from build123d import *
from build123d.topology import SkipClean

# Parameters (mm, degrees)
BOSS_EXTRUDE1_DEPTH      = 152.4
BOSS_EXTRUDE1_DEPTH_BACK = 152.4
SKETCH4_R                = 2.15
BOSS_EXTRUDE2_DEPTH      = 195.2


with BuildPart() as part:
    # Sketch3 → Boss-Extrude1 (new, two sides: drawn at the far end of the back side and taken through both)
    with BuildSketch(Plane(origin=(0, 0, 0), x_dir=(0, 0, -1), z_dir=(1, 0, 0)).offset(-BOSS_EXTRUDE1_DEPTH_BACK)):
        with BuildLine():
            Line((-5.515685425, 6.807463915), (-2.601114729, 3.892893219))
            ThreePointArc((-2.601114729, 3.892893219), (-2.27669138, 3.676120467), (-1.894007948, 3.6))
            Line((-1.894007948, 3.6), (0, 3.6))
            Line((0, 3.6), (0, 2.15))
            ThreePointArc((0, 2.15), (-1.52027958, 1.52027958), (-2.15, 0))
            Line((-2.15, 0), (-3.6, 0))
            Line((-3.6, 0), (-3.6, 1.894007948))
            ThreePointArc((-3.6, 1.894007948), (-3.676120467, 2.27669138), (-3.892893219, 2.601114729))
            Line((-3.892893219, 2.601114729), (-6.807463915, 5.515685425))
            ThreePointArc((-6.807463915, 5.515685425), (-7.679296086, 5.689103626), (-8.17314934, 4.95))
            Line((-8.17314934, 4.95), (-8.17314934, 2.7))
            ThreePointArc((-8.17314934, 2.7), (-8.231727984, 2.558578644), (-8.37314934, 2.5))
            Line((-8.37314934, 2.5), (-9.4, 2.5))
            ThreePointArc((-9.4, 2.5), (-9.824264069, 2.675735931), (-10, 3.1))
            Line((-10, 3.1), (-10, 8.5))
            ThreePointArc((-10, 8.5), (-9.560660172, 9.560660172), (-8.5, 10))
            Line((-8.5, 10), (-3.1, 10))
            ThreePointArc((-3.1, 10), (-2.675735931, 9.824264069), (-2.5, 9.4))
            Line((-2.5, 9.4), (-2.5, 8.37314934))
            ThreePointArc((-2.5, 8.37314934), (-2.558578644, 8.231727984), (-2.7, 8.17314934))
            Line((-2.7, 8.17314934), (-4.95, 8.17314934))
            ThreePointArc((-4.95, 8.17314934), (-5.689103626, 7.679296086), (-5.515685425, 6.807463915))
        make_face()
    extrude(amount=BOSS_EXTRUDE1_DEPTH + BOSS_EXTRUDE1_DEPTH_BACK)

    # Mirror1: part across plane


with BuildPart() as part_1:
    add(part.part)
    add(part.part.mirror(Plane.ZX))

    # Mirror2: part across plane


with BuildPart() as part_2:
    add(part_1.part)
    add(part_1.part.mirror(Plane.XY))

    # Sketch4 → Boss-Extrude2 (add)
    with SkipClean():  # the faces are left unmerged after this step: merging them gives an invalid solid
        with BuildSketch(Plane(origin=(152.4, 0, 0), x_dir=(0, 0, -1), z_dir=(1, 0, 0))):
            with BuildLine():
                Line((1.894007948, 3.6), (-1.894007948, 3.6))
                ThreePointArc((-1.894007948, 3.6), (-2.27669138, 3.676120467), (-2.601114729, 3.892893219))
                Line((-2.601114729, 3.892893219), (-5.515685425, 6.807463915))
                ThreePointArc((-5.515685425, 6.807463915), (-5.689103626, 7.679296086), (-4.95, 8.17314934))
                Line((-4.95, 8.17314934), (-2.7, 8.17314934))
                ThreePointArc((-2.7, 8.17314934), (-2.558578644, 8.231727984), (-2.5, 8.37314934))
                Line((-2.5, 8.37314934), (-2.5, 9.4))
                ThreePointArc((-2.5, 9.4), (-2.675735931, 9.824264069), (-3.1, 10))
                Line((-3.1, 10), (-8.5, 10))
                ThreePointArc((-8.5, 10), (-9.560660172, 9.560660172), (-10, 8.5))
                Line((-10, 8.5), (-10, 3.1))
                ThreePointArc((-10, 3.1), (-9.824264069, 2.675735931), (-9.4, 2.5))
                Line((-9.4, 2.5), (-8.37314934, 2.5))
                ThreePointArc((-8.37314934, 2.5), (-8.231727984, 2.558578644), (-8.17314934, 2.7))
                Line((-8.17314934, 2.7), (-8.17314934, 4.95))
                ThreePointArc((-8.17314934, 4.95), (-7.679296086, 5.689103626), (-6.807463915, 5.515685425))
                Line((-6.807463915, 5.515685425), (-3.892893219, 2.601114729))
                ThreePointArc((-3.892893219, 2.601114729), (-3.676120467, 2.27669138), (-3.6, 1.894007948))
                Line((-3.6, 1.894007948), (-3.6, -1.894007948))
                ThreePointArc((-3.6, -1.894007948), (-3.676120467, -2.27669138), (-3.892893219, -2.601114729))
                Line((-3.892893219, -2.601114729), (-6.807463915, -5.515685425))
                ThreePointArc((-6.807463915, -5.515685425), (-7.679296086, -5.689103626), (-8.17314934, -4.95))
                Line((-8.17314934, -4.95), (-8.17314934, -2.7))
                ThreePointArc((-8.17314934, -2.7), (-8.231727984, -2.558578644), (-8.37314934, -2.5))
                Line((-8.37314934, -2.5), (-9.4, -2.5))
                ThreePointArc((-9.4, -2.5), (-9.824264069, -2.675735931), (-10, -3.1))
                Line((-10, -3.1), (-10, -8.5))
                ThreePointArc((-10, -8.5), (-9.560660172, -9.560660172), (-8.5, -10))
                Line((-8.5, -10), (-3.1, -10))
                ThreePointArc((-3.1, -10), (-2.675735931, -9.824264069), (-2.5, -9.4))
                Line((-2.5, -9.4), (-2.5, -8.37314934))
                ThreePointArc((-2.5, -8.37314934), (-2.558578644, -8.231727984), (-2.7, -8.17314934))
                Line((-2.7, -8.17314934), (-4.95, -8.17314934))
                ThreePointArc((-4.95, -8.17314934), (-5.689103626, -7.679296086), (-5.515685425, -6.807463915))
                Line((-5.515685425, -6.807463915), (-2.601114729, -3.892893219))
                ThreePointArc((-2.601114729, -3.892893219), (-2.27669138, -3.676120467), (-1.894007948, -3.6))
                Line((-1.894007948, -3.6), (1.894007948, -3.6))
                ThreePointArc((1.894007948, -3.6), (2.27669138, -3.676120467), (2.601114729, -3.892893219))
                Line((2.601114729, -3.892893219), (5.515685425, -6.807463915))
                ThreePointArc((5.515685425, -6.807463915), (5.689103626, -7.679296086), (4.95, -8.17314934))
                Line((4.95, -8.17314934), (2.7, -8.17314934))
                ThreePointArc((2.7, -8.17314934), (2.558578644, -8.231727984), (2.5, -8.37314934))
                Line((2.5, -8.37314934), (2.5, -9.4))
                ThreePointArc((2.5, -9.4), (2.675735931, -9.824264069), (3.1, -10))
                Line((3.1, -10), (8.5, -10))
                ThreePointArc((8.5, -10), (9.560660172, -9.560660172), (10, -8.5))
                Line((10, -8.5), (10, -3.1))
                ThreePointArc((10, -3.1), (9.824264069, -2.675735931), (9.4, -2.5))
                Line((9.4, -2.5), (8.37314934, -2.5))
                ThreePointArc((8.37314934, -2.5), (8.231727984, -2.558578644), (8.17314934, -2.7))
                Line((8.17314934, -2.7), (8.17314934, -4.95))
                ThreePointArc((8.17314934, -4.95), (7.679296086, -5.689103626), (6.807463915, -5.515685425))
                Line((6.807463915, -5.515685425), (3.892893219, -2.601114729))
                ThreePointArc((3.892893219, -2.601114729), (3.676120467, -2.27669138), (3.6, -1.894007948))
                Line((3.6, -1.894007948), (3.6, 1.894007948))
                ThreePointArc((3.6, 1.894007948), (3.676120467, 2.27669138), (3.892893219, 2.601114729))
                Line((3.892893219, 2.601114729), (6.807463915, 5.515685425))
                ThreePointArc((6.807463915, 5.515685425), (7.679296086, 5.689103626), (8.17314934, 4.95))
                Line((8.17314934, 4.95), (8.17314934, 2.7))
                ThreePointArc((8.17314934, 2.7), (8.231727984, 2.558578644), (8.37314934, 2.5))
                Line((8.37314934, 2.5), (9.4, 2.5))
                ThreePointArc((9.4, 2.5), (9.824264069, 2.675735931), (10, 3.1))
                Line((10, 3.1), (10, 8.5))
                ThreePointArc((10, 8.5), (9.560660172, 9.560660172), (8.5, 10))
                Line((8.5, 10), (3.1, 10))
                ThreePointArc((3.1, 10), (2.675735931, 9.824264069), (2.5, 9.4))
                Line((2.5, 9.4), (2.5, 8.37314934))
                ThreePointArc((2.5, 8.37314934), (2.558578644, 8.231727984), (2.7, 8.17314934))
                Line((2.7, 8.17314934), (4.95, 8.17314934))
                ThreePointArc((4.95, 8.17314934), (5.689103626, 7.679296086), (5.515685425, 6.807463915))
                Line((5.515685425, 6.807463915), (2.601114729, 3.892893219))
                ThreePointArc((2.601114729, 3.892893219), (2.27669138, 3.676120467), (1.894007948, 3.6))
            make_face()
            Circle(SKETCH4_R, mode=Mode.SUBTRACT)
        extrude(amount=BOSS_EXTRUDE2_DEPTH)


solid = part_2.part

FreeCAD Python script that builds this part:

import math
import FreeCAD as App
import Part
import Sketcher
Q = App.Units.Quantity

doc = App.newDocument("Part")
body = doc.addObject("PartDesign::Body", "Body")

# Sketch on YZ plane
sketch1 = body.newObject("Sketcher::SketchObject", "Sketch")
sketch1.AttachmentSupport = (doc.getObject("YZ_Plane"), [""])
sketch1.MapMode = "FlatFace"
sketch1.addGeometry([
    Part.LineSegment(App.Vector(3.89, 2.6, 0), App.Vector(6.81, 5.52, 0)),  # 0
    Part.ArcOfCircle(Part.Circle(App.Vector(7.37, 4.95, 0), App.Vector(0, 0, 1), 0.8), math.radians(0), math.radians(135)),  # 1
    Part.LineSegment(App.Vector(8.17, 4.95, 0), App.Vector(8.17, 2.7, 0)),  # 2
    Part.ArcOfCircle(Part.Circle(App.Vector(8.37, 2.7, 0), App.Vector(0, 0, 1), 0.2), math.radians(-180), math.radians(-90)),  # 3
    Part.LineSegment(App.Vector(8.37, 2.5, 0), App.Vector(9.4, 2.5, 0)),  # 4
    Part.ArcOfCircle(Part.Circle(App.Vector(9.4, 3.1, 0), App.Vector(0, 0, 1), 0.6), math.radians(-90), math.radians(0)),  # 5
    Part.LineSegment(App.Vector(10, 3.1, 0), App.Vector(10, 8.5, 0)),  # 6
    Part.ArcOfCircle(Part.Circle(App.Vector(8.5, 8.5, 0), App.Vector(0, 0, 1), 1.5), math.radians(0), math.radians(90)),  # 7
    Part.LineSegment(App.Vector(8.5, 10, 0), App.Vector(3.1, 10, 0)),  # 8
    Part.ArcOfCircle(Part.Circle(App.Vector(3.1, 9.4, 0), App.Vector(0, 0, 1), 0.6), math.radians(90), math.radians(180)),  # 9
    Part.LineSegment(App.Vector(2.5, 9.4, 0), App.Vector(2.5, 8.37, 0)),  # 10
    Part.ArcOfCircle(Part.Circle(App.Vector(2.7, 8.37, 0), App.Vector(0, 0, 1), 0.2), math.radians(-180), math.radians(-90)),  # 11
    Part.LineSegment(App.Vector(2.7, 8.17, 0), App.Vector(4.95, 8.17, 0)),  # 12
    Part.ArcOfCircle(Part.Circle(App.Vector(4.95, 7.37, 0), App.Vector(0, 0, 1), 0.8), math.radians(-45), math.radians(90)),  # 13
    Part.LineSegment(App.Vector(5.52, 6.81, 0), App.Vector(2.6, 3.89, 0)),  # 14
    Part.ArcOfCircle(Part.Circle(App.Vector(1.89, 4.6, 0), App.Vector(0, 0, 1), 1), math.radians(-90), math.radians(-45)),  # 15
    Part.LineSegment(App.Vector(1.89, 3.6, 0), App.Vector(0, 3.6, 0)),  # 16
    Part.LineSegment(App.Vector(0, 3.6, 0), App.Vector(0, 2.15, 0)),  # 17
    Part.ArcOfCircle(Part.Circle(App.Vector(0, 0, 0), App.Vector(0, 0, 1), 2.15), math.radians(0), math.radians(90)),  # 18
    Part.LineSegment(App.Vector(2.15, 0, 0), App.Vector(3.6, 0, 0)),  # 19
    Part.LineSegment(App.Vector(3.6, 0, 0), App.Vector(3.6, 1.89, 0)),  # 20
    Part.ArcOfCircle(Part.Circle(App.Vector(4.6, 1.89, 0), App.Vector(0, 0, 1), 1), math.radians(135), math.radians(180)),  # 21
], False)
sketch1.addConstraint([
    Sketcher.Constraint("Tangent", 0, 2, 1, 2),
    Sketcher.Constraint("Tangent", 1, 1, 2, 1),
    Sketcher.Constraint("Tangent", 2, 2, 3, 1),
    Sketcher.Constraint("Tangent", 3, 2, 4, 1),
    Sketcher.Constraint("Tangent", 4, 2, 5, 1),
    Sketcher.Constraint("Tangent", 5, 2, 6, 1),
    Sketcher.Constraint("Tangent", 6, 2, 7, 1),
    Sketcher.Constraint("Tangent", 7, 2, 8, 1),
    Sketcher.Constraint("Tangent", 8, 2, 9, 1),
    Sketcher.Constraint("Tangent", 9, 2, 10, 1),
    Sketcher.Constraint("Tangent", 10, 2, 11, 1),
    Sketcher.Constraint("Tangent", 11, 2, 12, 1),
    Sketcher.Constraint("Tangent", 12, 2, 13, 2),
    Sketcher.Constraint("Tangent", 13, 1, 14, 1),
    Sketcher.Constraint("Tangent", 14, 2, 15, 2),
    Sketcher.Constraint("Tangent", 15, 1, 16, 1),
    Sketcher.Constraint("Coincident", 16, 2, 17, 1),
    Sketcher.Constraint("Coincident", 17, 2, 18, 2),
    Sketcher.Constraint("Coincident", 18, 1, 19, 1),
    Sketcher.Constraint("Coincident", 19, 2, 20, 1),
    Sketcher.Constraint("Tangent", 20, 2, 21, 2),
    Sketcher.Constraint("Tangent", 21, 1, 0, 1),
    Sketcher.Constraint("Vertical", 2),
    Sketcher.Constraint("Horizontal", 4),
    Sketcher.Constraint("Vertical", 6),
    Sketcher.Constraint("Horizontal", 8),
    Sketcher.Constraint("Vertical", 10),
    Sketcher.Constraint("Horizontal", 12),
    Sketcher.Constraint("Horizontal", 16),
    Sketcher.Constraint("Vertical", 17),
    Sketcher.Constraint("Horizontal", 19),
    Sketcher.Constraint("Vertical", 20),
    Sketcher.Constraint("Coincident", 18, 3, -1, 1),
    Sketcher.Constraint("Equal", 5, 9),
    Sketcher.Constraint("Equal", 3, 11),
    Sketcher.Constraint("Equal", 1, 13),
    Sketcher.Constraint("Equal", 15, 21),
    Sketcher.Constraint("PointOnObject", 16, 2, -2),
    Sketcher.Constraint("PointOnObject", 18, 1, -1),
    Sketcher.Constraint("Parallel", 0, 14),
    Sketcher.Constraint("Equal", 12, 2),
    Sketcher.Constraint("Equal", 8, 6),
    Sketcher.Constraint("Equal", 4, 10),
    Sketcher.Constraint("Equal", 19, 17),
    Sketcher.Constraint("Equal", 16, 20),
    Sketcher.Constraint("Equal", 0, 14),
    Sketcher.Constraint("Radius", 15, Q("1 mm")),
    Sketcher.Constraint("Radius", 1, Q("0.8 mm")),
    Sketcher.Constraint("Radius", 3, Q("0.2 mm")),
    Sketcher.Constraint("Radius", 5, Q("0.6 mm")),
    Sketcher.Constraint("Radius", 7, Q("1.5 mm")),
    Sketcher.Constraint("Radius", 18, Q("2.15 mm")),
    Sketcher.Constraint("DistanceX", 8, 2, 8, 1, Q("5.4 mm")),
    Sketcher.Constraint("DistanceX", -1, 1, 5, 2, Q("10 mm")),
    Sketcher.Constraint("DistanceX", 12, 1, 12, 2, Q("2.25 mm")),
    Sketcher.Constraint("DistanceX", 19, 1, 19, 2, Q("1.45 mm")),
    Sketcher.Constraint("DistanceX", 4, 1, 4, 2, Q("1.026851 mm")),
])
pad1 = body.newObject("PartDesign::Pad", "Pad")
pad1.Profile = sketch1
pad1.Type = "TwoLengths"
pad1.Length = 152.4
pad1.Length2 = 152.4
body2 = doc.addObject("PartDesign::Body", "Body001")
doc.recompute()

body2.BaseFeature = body
doc.recompute()

mirroring = doc.addObject("Part::Mirroring", "Mirroring")
mirroring.Source = body
mirroring.Base = App.Vector(0, 0, 0)
mirroring.Normal = App.Vector(0, 1, 0)
body3 = doc.addObject("PartDesign::Body", "Body002")
body3.BaseFeature = mirroring
boolean = body2.newObject("PartDesign::Boolean", "Boolean")
boolean.Type = "Fuse"
boolean.addObjects([body3])
doc.recompute()
body4 = doc.addObject("PartDesign::Body", "Body003")
doc.recompute()

body4.BaseFeature = body2
doc.recompute()

mirroring2 = doc.addObject("Part::Mirroring", "Mirroring001")
mirroring2.Source = body2
mirroring2.Base = App.Vector(0, 0, 0)
mirroring2.Normal = App.Vector(0, 0, 1)
body5 = doc.addObject("PartDesign::Body", "Body004")
body5.BaseFeature = mirroring2
boolean2 = body4.newObject("PartDesign::Boolean", "Boolean001")
boolean2.Type = "Fuse"
boolean2.addObjects([body5])
doc.recompute()

# Sketch on YZ plane
sketch2 = body4.newObject("Sketcher::SketchObject", "Sketch001")
sketch2.AttachmentSupport = (doc.getObject("YZ_Plane003"), [""])
sketch2.MapMode = "FlatFace"
sketch2.AttachmentOffset = App.Placement(App.Vector(0, 0, 152.4), App.Rotation())
sketch2.addGeometry([
    Part.LineSegment(App.Vector(3.6, -1.89, 0), App.Vector(3.6, 1.89, 0)),  # 0
    Part.ArcOfCircle(Part.Circle(App.Vector(4.6, 1.89, 0), App.Vector(0, 0, 1), 1), math.radians(135), math.radians(180)),  # 1
    Part.LineSegment(App.Vector(3.89, 2.6, 0), App.Vector(6.81, 5.52, 0)),  # 2
    Part.ArcOfCircle(Part.Circle(App.Vector(7.37, 4.95, 0), App.Vector(0, 0, 1), 0.8), math.radians(0), math.radians(135)),  # 3
    Part.LineSegment(App.Vector(8.17, 4.95, 0), App.Vector(8.17, 2.7, 0)),  # 4
    Part.ArcOfCircle(Part.Circle(App.Vector(8.37, 2.7, 0), App.Vector(0, 0, 1), 0.2), math.radians(-180), math.radians(-90)),  # 5
    Part.LineSegment(App.Vector(8.37, 2.5, 0), App.Vector(9.4, 2.5, 0)),  # 6
    Part.ArcOfCircle(Part.Circle(App.Vector(9.4, 3.1, 0), App.Vector(0, 0, 1), 0.6), math.radians(-90), math.radians(0)),  # 7
    Part.LineSegment(App.Vector(10, 3.1, 0), App.Vector(10, 8.5, 0)),  # 8
    Part.ArcOfCircle(Part.Circle(App.Vector(8.5, 8.5, 0), App.Vector(0, 0, 1), 1.5), math.radians(0), math.radians(90)),  # 9
    Part.LineSegment(App.Vector(8.5, 10, 0), App.Vector(3.1, 10, 0)),  # 10
    Part.ArcOfCircle(Part.Circle(App.Vector(3.1, 9.4, 0), App.Vector(0, 0, 1), 0.6), math.radians(90), math.radians(180)),  # 11
    Part.LineSegment(App.Vector(2.5, 9.4, 0), App.Vector(2.5, 8.37, 0)),  # 12
    Part.ArcOfCircle(Part.Circle(App.Vector(2.7, 8.37, 0), App.Vector(0, 0, 1), 0.2), math.radians(-180), math.radians(-90)),  # 13
    Part.LineSegment(App.Vector(2.7, 8.17, 0), App.Vector(4.95, 8.17, 0)),  # 14
    Part.ArcOfCircle(Part.Circle(App.Vector(4.95, 7.37, 0), App.Vector(0, 0, 1), 0.8), math.radians(-45), math.radians(90)),  # 15
    Part.LineSegment(App.Vector(5.52, 6.81, 0), App.Vector(2.6, 3.89, 0)),  # 16
    Part.ArcOfCircle(Part.Circle(App.Vector(1.89, 4.6, 0), App.Vector(0, 0, 1), 1), math.radians(-90), math.radians(-45)),  # 17
    Part.LineSegment(App.Vector(1.89, 3.6, 0), App.Vector(-1.89, 3.6, 0)),  # 18
    Part.ArcOfCircle(Part.Circle(App.Vector(-1.89, 4.6, 0), App.Vector(0, 0, 1), 1), math.radians(-135), math.radians(-90)),  # 19
    Part.LineSegment(App.Vector(-2.6, 3.89, 0), App.Vector(-5.52, 6.81, 0)),  # 20
    Part.ArcOfCircle(Part.Circle(App.Vector(-4.95, 7.37, 0), App.Vector(0, 0, 1), 0.8), math.radians(90), math.radians(225)),  # 21
    Part.LineSegment(App.Vector(-4.95, 8.17, 0), App.Vector(-2.7, 8.17, 0)),  # 22
    Part.ArcOfCircle(Part.Circle(App.Vector(-2.7, 8.37, 0), App.Vector(0, 0, 1), 0.2), math.radians(-90), math.radians(0)),  # 23
    Part.LineSegment(App.Vector(-2.5, 8.37, 0), App.Vector(-2.5, 9.4, 0)),  # 24
    Part.ArcOfCircle(Part.Circle(App.Vector(-3.1, 9.4, 0), App.Vector(0, 0, 1), 0.6), math.radians(0), math.radians(90)),  # 25
    Part.LineSegment(App.Vector(-3.1, 10, 0), App.Vector(-8.5, 10, 0)),  # 26
    Part.ArcOfCircle(Part.Circle(App.Vector(-8.5, 8.5, 0), App.Vector(0, 0, 1), 1.5), math.radians(90), math.radians(180)),  # 27
    Part.LineSegment(App.Vector(-10, 8.5, 0), App.Vector(-10, 3.1, 0)),  # 28
    Part.ArcOfCircle(Part.Circle(App.Vector(-9.4, 3.1, 0), App.Vector(0, 0, 1), 0.6), math.radians(180), math.radians(270)),  # 29
    Part.LineSegment(App.Vector(-9.4, 2.5, 0), App.Vector(-8.37, 2.5, 0)),  # 30
    Part.ArcOfCircle(Part.Circle(App.Vector(-8.37, 2.7, 0), App.Vector(0, 0, 1), 0.2), math.radians(-90), math.radians(0)),  # 31
    Part.LineSegment(App.Vector(-8.17, 2.7, 0), App.Vector(-8.17, 4.95, 0)),  # 32
    Part.ArcOfCircle(Part.Circle(App.Vector(-7.37, 4.95, 0), App.Vector(0, 0, 1), 0.8), math.radians(45), math.radians(180)),  # 33
    Part.LineSegment(App.Vector(-6.81, 5.52, 0), App.Vector(-3.89, 2.6, 0)),  # 34
    Part.ArcOfCircle(Part.Circle(App.Vector(-4.6, 1.89, 0), App.Vector(0, 0, 1), 1), math.radians(0), math.radians(45)),  # 35
    Part.LineSegment(App.Vector(-3.6, 1.89, 0), App.Vector(-3.6, -1.89, 0)),  # 36
    Part.ArcOfCircle(Part.Circle(App.Vector(-4.6, -1.89, 0), App.Vector(0, 0, 1), 1), math.radians(-45), math.radians(0)),  # 37
    Part.LineSegment(App.Vector(-3.89, -2.6, 0), App.Vector(-6.81, -5.52, 0)),  # 38
    Part.ArcOfCircle(Part.Circle(App.Vector(-7.37, -4.95, 0), App.Vector(0, 0, 1), 0.8), math.radians(180), math.radians(315)),  # 39
    Part.LineSegment(App.Vector(-8.17, -4.95, 0), App.Vector(-8.17, -2.7, 0)),  # 40
    Part.ArcOfCircle(Part.Circle(App.Vector(-8.37, -2.7, 0), App.Vector(0, 0, 1), 0.2), math.radians(0), math.radians(90)),  # 41
    Part.LineSegment(App.Vector(-8.37, -2.5, 0), App.Vector(-9.4, -2.5, 0)),  # 42
    Part.ArcOfCircle(Part.Circle(App.Vector(-9.4, -3.1, 0), App.Vector(0, 0, 1), 0.6), math.radians(90), math.radians(180)),  # 43
    Part.LineSegment(App.Vector(-10, -3.1, 0), App.Vector(-10, -8.5, 0)),  # 44
    Part.ArcOfCircle(Part.Circle(App.Vector(-8.5, -8.5, 0), App.Vector(0, 0, 1), 1.5), math.radians(180), math.radians(270)),  # 45
    Part.LineSegment(App.Vector(-8.5, -10, 0), App.Vector(-3.1, -10, 0)),  # 46
    Part.ArcOfCircle(Part.Circle(App.Vector(-3.1, -9.4, 0), App.Vector(0, 0, 1), 0.6), math.radians(-90), math.radians(0)),  # 47
    Part.LineSegment(App.Vector(-2.5, -9.4, 0), App.Vector(-2.5, -8.37, 0)),  # 48
    Part.ArcOfCircle(Part.Circle(App.Vector(-2.7, -8.37, 0), App.Vector(0, 0, 1), 0.2), math.radians(0), math.radians(90)),  # 49
    Part.LineSegment(App.Vector(-2.7, -8.17, 0), App.Vector(-4.95, -8.17, 0)),  # 50
    Part.ArcOfCircle(Part.Circle(App.Vector(-4.95, -7.37, 0), App.Vector(0, 0, 1), 0.8), math.radians(135), math.radians(270)),  # 51
    Part.LineSegment(App.Vector(-5.52, -6.81, 0), App.Vector(-2.6, -3.89, 0)),  # 52
    Part.ArcOfCircle(Part.Circle(App.Vector(-1.89, -4.6, 0), App.Vector(0, 0, 1), 1), math.radians(90), math.radians(135)),  # 53
    Part.LineSegment(App.Vector(-1.89, -3.6, 0), App.Vector(1.89, -3.6, 0)),  # 54
    Part.ArcOfCircle(Part.Circle(App.Vector(1.89, -4.6, 0), App.Vector(0, 0, 1), 1), math.radians(45), math.radians(90)),  # 55
    Part.LineSegment(App.Vector(2.6, -3.89, 0), App.Vector(5.52, -6.81, 0)),  # 56
    Part.ArcOfCircle(Part.Circle(App.Vector(4.95, -7.37, 0), App.Vector(0, 0, 1), 0.8), math.radians(-90), math.radians(45)),  # 57
    Part.LineSegment(App.Vector(4.95, -8.17, 0), App.Vector(2.7, -8.17, 0)),  # 58
    Part.ArcOfCircle(Part.Circle(App.Vector(2.7, -8.37, 0), App.Vector(0, 0, 1), 0.2), math.radians(90), math.radians(180)),  # 59
    Part.LineSegment(App.Vector(2.5, -8.37, 0), App.Vector(2.5, -9.4, 0)),  # 60
    Part.ArcOfCircle(Part.Circle(App.Vector(3.1, -9.4, 0), App.Vector(0, 0, 1), 0.6), math.radians(180), math.radians(270)),  # 61
    Part.LineSegment(App.Vector(3.1, -10, 0), App.Vector(8.5, -10, 0)),  # 62
    Part.ArcOfCircle(Part.Circle(App.Vector(8.5, -8.5, 0), App.Vector(0, 0, 1), 1.5), math.radians(-90), math.radians(0)),  # 63
    Part.LineSegment(App.Vector(10, -8.5, 0), App.Vector(10, -3.1, 0)),  # 64
    Part.ArcOfCircle(Part.Circle(App.Vector(9.4, -3.1, 0), App.Vector(0, 0, 1), 0.6), math.radians(0), math.radians(90)),  # 65
    Part.LineSegment(App.Vector(9.4, -2.5, 0), App.Vector(8.37, -2.5, 0)),  # 66
    Part.ArcOfCircle(Part.Circle(App.Vector(8.37, -2.7, 0), App.Vector(0, 0, 1), 0.2), math.radians(90), math.radians(180)),  # 67
    Part.LineSegment(App.Vector(8.17, -2.7, 0), App.Vector(8.17, -4.95, 0)),  # 68
    Part.ArcOfCircle(Part.Circle(App.Vector(7.37, -4.95, 0), App.Vector(0, 0, 1), 0.8), math.radians(-135), math.radians(0)),  # 69
    Part.LineSegment(App.Vector(6.81, -5.52, 0), App.Vector(3.89, -2.6, 0)),  # 70
    Part.ArcOfCircle(Part.Circle(App.Vector(4.6, -1.89, 0), App.Vector(0, 0, 1), 1), math.radians(180), math.radians(225)),  # 71
    Part.Circle(App.Vector(0, 0, 0), App.Vector(0, 0, 1), 2.15),  # 72
], False)
sketch2.addConstraint([
    Sketcher.Constraint("Tangent", 0, 2, 1, 2),
    Sketcher.Constraint("Tangent", 1, 1, 2, 1),
    Sketcher.Constraint("Tangent", 2, 2, 3, 2),
    Sketcher.Constraint("Tangent", 3, 1, 4, 1),
    Sketcher.Constraint("Tangent", 4, 2, 5, 1),
    Sketcher.Constraint("Tangent", 5, 2, 6, 1),
    Sketcher.Constraint("Tangent", 6, 2, 7, 1),
    Sketcher.Constraint("Tangent", 7, 2, 8, 1),
    Sketcher.Constraint("Tangent", 8, 2, 9, 1),
    Sketcher.Constraint("Tangent", 9, 2, 10, 1),
    Sketcher.Constraint("Tangent", 10, 2, 11, 1),
    Sketcher.Constraint("Tangent", 11, 2, 12, 1),
    Sketcher.Constraint("Tangent", 12, 2, 13, 1),
    Sketcher.Constraint("Tangent", 13, 2, 14, 1),
    Sketcher.Constraint("Tangent", 14, 2, 15, 2),
    Sketcher.Constraint("Tangent", 15, 1, 16, 1),
    Sketcher.Constraint("Tangent", 16, 2, 17, 2),
    Sketcher.Constraint("Tangent", 17, 1, 18, 1),
    Sketcher.Constraint("Tangent", 18, 2, 19, 2),
    Sketcher.Constraint("Tangent", 19, 1, 20, 1),
    Sketcher.Constraint("Tangent", 20, 2, 21, 2),
    Sketcher.Constraint("Tangent", 21, 1, 22, 1),
    Sketcher.Constraint("Tangent", 22, 2, 23, 1),
    Sketcher.Constraint("Tangent", 23, 2, 24, 1),
    Sketcher.Constraint("Tangent", 24, 2, 25, 1),
    Sketcher.Constraint("Tangent", 25, 2, 26, 1),
    Sketcher.Constraint("Tangent", 26, 2, 27, 1),
    Sketcher.Constraint("Tangent", 27, 2, 28, 1),
    Sketcher.Constraint("Tangent", 28, 2, 29, 1),
    Sketcher.Constraint("Tangent", 29, 2, 30, 1),
    Sketcher.Constraint("Tangent", 30, 2, 31, 1),
    Sketcher.Constraint("Tangent", 31, 2, 32, 1),
    Sketcher.Constraint("Tangent", 32, 2, 33, 2),
    Sketcher.Constraint("Tangent", 33, 1, 34, 1),
    Sketcher.Constraint("Tangent", 34, 2, 35, 2),
    Sketcher.Constraint("Tangent", 35, 1, 36, 1),
    Sketcher.Constraint("Tangent", 36, 2, 37, 2),
    Sketcher.Constraint("Tangent", 37, 1, 38, 1),
    Sketcher.Constraint("Tangent", 38, 2, 39, 2),
    Sketcher.Constraint("Tangent", 39, 1, 40, 1),
    Sketcher.Constraint("Tangent", 40, 2, 41, 1),
    Sketcher.Constraint("Tangent", 41, 2, 42, 1),
    Sketcher.Constraint("Tangent", 42, 2, 43, 1),
    Sketcher.Constraint("Tangent", 43, 2, 44, 1),
    Sketcher.Constraint("Tangent", 44, 2, 45, 1),
    Sketcher.Constraint("Tangent", 45, 2, 46, 1),
    Sketcher.Constraint("Tangent", 46, 2, 47, 1),
    Sketcher.Constraint("Tangent", 47, 2, 48, 1),
    Sketcher.Constraint("Tangent", 48, 2, 49, 1),
    Sketcher.Constraint("Tangent", 49, 2, 50, 1),
    Sketcher.Constraint("Tangent", 50, 2, 51, 2),
    Sketcher.Constraint("Tangent", 51, 1, 52, 1),
    Sketcher.Constraint("Tangent", 52, 2, 53, 2),
    Sketcher.Constraint("Tangent", 53, 1, 54, 1),
    Sketcher.Constraint("Tangent", 54, 2, 55, 2),
    Sketcher.Constraint("Tangent", 55, 1, 56, 1),
    Sketcher.Constraint("Tangent", 56, 2, 57, 2),
    Sketcher.Constraint("Tangent", 57, 1, 58, 1),
    Sketcher.Constraint("Tangent", 58, 2, 59, 1),
    Sketcher.Constraint("Tangent", 59, 2, 60, 1),
    Sketcher.Constraint("Tangent", 60, 2, 61, 1),
    Sketcher.Constraint("Tangent", 61, 2, 62, 1),
    Sketcher.Constraint("Tangent", 62, 2, 63, 1),
    Sketcher.Constraint("Tangent", 63, 2, 64, 1),
    Sketcher.Constraint("Tangent", 64, 2, 65, 1),
    Sketcher.Constraint("Tangent", 65, 2, 66, 1),
    Sketcher.Constraint("Tangent", 66, 2, 67, 1),
    Sketcher.Constraint("Tangent", 67, 2, 68, 1),
    Sketcher.Constraint("Tangent", 68, 2, 69, 2),
    Sketcher.Constraint("Tangent", 69, 1, 70, 1),
    Sketcher.Constraint("Tangent", 70, 2, 71, 2),
    Sketcher.Constraint("Tangent", 71, 1, 0, 1),
    Sketcher.Constraint("Vertical", 0),
    Sketcher.Constraint("Vertical", 4),
    Sketcher.Constraint("Horizontal", 6),
    Sketcher.Constraint("Vertical", 8),
    Sketcher.Constraint("Horizontal", 10),
    Sketcher.Constraint("Vertical", 12),
    Sketcher.Constraint("Horizontal", 14),
    Sketcher.Constraint("Horizontal", 18),
    Sketcher.Constraint("Horizontal", 22),
    Sketcher.Constraint("Vertical", 24),
    Sketcher.Constraint("Horizontal", 26),
    Sketcher.Constraint("Vertical", 28),
    Sketcher.Constraint("Horizontal", 30),
    Sketcher.Constraint("Vertical", 32),
    Sketcher.Constraint("Vertical", 36),
    Sketcher.Constraint("Vertical", 40),
    Sketcher.Constraint("Horizontal", 42),
    Sketcher.Constraint("Vertical", 44),
    Sketcher.Constraint("Horizontal", 46),
    Sketcher.Constraint("Vertical", 48),
    Sketcher.Constraint("Horizontal", 50),
    Sketcher.Constraint("Horizontal", 54),
    Sketcher.Constraint("Horizontal", 58),
    Sketcher.Constraint("Vertical", 60),
    Sketcher.Constraint("Horizontal", 62),
    Sketcher.Constraint("Vertical", 64),
    Sketcher.Constraint("Horizontal", 66),
    Sketcher.Constraint("Vertical", 68),
    Sketcher.Constraint("Coincident", 72, 3, -1, 1),
    Sketcher.Constraint("Equal", 7, 11),
    Sketcher.Constraint("Equal", 5, 13),
    Sketcher.Constraint("Equal", 3, 15),
    Sketcher.Constraint("Equal", 1, 17),
    Sketcher.Constraint("Equal", 17, 19),
    Sketcher.Constraint("Equal", 15, 21),
    Sketcher.Constraint("Equal", 13, 23),
    Sketcher.Constraint("Equal", 11, 25),
    Sketcher.Constraint("Equal", 9, 27),
    Sketcher.Constraint("Equal", 25, 29),
    Sketcher.Constraint("Equal", 23, 31),
    Sketcher.Constraint("Equal", 21, 33),
    Sketcher.Constraint("Equal", 19, 35),
    Sketcher.Constraint("Equal", 35, 37),
    Sketcher.Constraint("Equal", 33, 39),
    Sketcher.Constraint("Equal", 31, 41),
    Sketcher.Constraint("Equal", 29, 43),
    Sketcher.Constraint("Equal", 27, 45),
    Sketcher.Constraint("Equal", 43, 47),
    Sketcher.Constraint("Equal", 41, 49),
    Sketcher.Constraint("Equal", 39, 51),
    Sketcher.Constraint("Equal", 37, 53),
    Sketcher.Constraint("Equal", 53, 55),
    Sketcher.Constraint("Equal", 51, 57),
    Sketcher.Constraint("Equal", 49, 59),
    Sketcher.Constraint("Equal", 47, 61),
    Sketcher.Constraint("Equal", 45, 63),
    Sketcher.Constraint("Equal", 61, 65),
    Sketcher.Constraint("Equal", 59, 67),
    Sketcher.Constraint("Equal", 57, 69),
    Sketcher.Constraint("Equal", 55, 71),
    Sketcher.Constraint("Symmetric", 1, 3, 37, 3, -1, 1),
    Sketcher.Constraint("Symmetric", 3, 3, 39, 3, -1, 1),
    Sketcher.Constraint("Symmetric", 7, 3, 43, 3, -1, 1),
    Sketcher.Constraint("Symmetric", 11, 3, 47, 3, -1, 1),
    Sketcher.Constraint("Symmetric", 15, 3, 51, 3, -1, 1),
    Sketcher.Constraint("Symmetric", 17, 3, 53, 3, -1, 1),
    Sketcher.Constraint("Symmetric", 21, 3, 57, 3, -1, 1),
    Sketcher.Constraint("Symmetric", 25, 3, 61, 3, -1, 1),
    Sketcher.Constraint("Symmetric", 29, 3, 65, 3, -1, 1),
    Sketcher.Constraint("Symmetric", 33, 3, 69, 3, -1, 1),
    Sketcher.Constraint("Symmetric", 15, 3, 21, 3, -2),
    Sketcher.Constraint("Symmetric", 11, 3, 25, 3, -2),
    Sketcher.Constraint("Symmetric", 7, 3, 29, 3, -2),
    Sketcher.Constraint("Symmetric", 3, 3, 33, 3, -2),
    Sketcher.Constraint("Parallel", 2, 16),
    Sketcher.Constraint("Perpendicular", 16, 20),
    Sketcher.Constraint("Parallel", 20, 34),
    Sketcher.Constraint("Perpendicular", 52, 56),
    Sketcher.Constraint("Parallel", 56, 70),
    Sketcher.Constraint("Horizontal", 1, 3, 35, 3),
    Sketcher.Constraint("Equal", 54, 0),
    Sketcher.Constraint("Equal", 58, 4),
    Sketcher.Constraint("Equal", 62, 8),
    Sketcher.Constraint("Equal", 66, 12),
    Sketcher.Constraint("Equal", 2, 16),
    Sketcher.Constraint("Radius", 1, Q("1 mm")),
    Sketcher.Constraint("Diameter", 72, Q("4.3 mm")),
    Sketcher.Constraint("Radius", 3, Q("0.8 mm")),
    Sketcher.Constraint("Radius", 5, Q("0.2 mm")),
    Sketcher.Constraint("Radius", 7, Q("0.6 mm")),
    Sketcher.Constraint("Radius", 9, Q("1.5 mm")),
    Sketcher.Constraint("DistanceX", 10, 2, 10, 1, Q("5.4 mm")),
    Sketcher.Constraint("DistanceX", -1, 1, 7, 2, Q("10 mm")),
    Sketcher.Constraint("DistanceX", 14, 1, 14, 2, Q("2.25 mm")),
    Sketcher.Constraint("DistanceX", -1, 1, 1, 3, Q("4.6 mm")),
    Sketcher.Constraint("DistanceX", 6, 1, 6, 2, Q("1.026851 mm")),
])
pad2 = body4.newObject("PartDesign::Pad", "Pad001")
pad2.Profile = sketch2
pad2.Length = 195.2
mirroring.Visibility = False
mirroring2.Visibility = False

doc.recompute()
